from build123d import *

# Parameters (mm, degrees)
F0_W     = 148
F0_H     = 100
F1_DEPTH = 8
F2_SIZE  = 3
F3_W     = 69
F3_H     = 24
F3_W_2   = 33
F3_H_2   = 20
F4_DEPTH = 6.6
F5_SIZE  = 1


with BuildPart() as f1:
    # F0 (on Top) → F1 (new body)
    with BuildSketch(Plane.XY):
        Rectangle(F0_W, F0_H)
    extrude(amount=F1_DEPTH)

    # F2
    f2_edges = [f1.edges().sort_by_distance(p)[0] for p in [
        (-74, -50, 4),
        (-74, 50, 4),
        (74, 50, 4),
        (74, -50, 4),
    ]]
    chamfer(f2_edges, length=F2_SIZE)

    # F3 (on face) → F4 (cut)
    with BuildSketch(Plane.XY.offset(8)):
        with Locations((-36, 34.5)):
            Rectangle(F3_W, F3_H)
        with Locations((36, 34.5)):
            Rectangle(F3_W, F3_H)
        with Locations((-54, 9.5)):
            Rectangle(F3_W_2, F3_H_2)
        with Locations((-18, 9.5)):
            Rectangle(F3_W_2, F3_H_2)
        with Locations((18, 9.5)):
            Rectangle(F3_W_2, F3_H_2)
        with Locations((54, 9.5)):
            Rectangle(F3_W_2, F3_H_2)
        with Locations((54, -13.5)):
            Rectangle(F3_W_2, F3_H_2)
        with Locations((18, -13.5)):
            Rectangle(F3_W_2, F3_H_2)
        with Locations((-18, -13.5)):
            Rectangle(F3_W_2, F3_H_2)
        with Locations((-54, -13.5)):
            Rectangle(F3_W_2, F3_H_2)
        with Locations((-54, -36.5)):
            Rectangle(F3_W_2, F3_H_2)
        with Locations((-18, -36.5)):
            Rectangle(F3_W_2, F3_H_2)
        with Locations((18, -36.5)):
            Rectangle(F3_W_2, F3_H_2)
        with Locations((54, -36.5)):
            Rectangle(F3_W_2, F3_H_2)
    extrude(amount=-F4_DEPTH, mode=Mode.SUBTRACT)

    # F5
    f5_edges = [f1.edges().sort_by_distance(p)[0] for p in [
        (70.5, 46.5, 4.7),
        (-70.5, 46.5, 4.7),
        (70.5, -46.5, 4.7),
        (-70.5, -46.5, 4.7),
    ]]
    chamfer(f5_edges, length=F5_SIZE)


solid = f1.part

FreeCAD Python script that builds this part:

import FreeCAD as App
import Part
import Sketcher

V = App.Vector


def edges_at(feature, points):
    """Names of the edges that pass closest to the given points."""
    edges = feature.Shape.Edges
    near = lambda p: min(range(len(edges)), key=lambda i: edges[i].distToShape(Part.Vertex(*p))[0])
    return sorted({f"Edge{near(p) + 1}" for p in points})


def add_polygon(sketch, points):
    """Adds a closed chain of lines whose ends are joined by coincident constraints."""
    first, n = sketch.GeometryCount, len(points)
    for a, b in zip(points, points[1:] + points[:1]):
        sketch.addGeometry(Part.LineSegment(App.Vector(*a, 0), App.Vector(*b, 0)), False)
    for i in range(n):
        sketch.addConstraint(Sketcher.Constraint("Coincident", first + i, 2, first + (i + 1) % n, 1))

doc = App.newDocument("Part")
body = doc.addObject("PartDesign::Body", "Body")

# Sketch on XY plane
sketch1 = body.newObject("Sketcher::SketchObject", "Sketch")
sketch1.AttachmentSupport = (doc.getObject("XY_Plane"), [""])
sketch1.MapMode = "FlatFace"
add_polygon(sketch1, [(-74, 50), (-74, -50), (74, -50), (74, 50)])  # lines 0-3
sketch1.addConstraint([
    Sketcher.Constraint("Vertical", 0),
    Sketcher.Constraint("Horizontal", 1),
    Sketcher.Constraint("Vertical", 2),
    Sketcher.Constraint("Horizontal", 3),
    Sketcher.Constraint("Symmetric", 0, 2, 2, 2, -1, 1),
    Sketcher.Constraint("DistanceX", 1, 1, 1, 2, 148.0),
    Sketcher.Constraint("DistanceY", 0, 2, 0, 1, 100.0),
])
pad1 = body.newObject("PartDesign::Pad", "Pad")
pad1.Profile = sketch1
pad1.Length = 8
doc.recompute()

chamfer = body.newObject("PartDesign::Chamfer", "Chamfer")
chamfer.Base = (pad1, edges_at(pad1, [
    (-74, -50, 4),
    (-74, 50, 4),
    (74, 50, 4),
    (74, -50, 4),
]))
chamfer.Size = 3

# Sketch on XY plane
sketch2 = body.newObject("Sketcher::SketchObject", "Sketch001")
sketch2.AttachmentSupport = (doc.getObject("XY_Plane"), [""])
sketch2.MapMode = "FlatFace"
sketch2.AttachmentOffset = App.Placement(V(0, 0, 8), App.Rotation())
add_polygon(sketch2, [(-70.5, 46.5), (-70.5, 22.5), (-1.5, 22.5), (-1.5, 46.5)])  # lines 0-3
add_polygon(sketch2, [(1.5, 46.5), (1.5, 22.5), (70.5, 22.5), (70.5, 46.5)])  # lines 4-7
add_polygon(sketch2, [(-70.5, 19.5), (-70.5, -0.5), (-37.5, -0.5), (-37.5, 19.5)])  # lines 8-11
add_polygon(sketch2, [(-34.5, 19.5), (-34.5, -0.5), (-1.5, -0.5), (-1.5, 19.5)])  # lines 12-15
add_polygon(sketch2, [(1.5, 19.5), (1.5, -0.5), (34.5, -0.5), (34.5, 19.5)])  # lines 16-19
add_polygon(sketch2, [(37.5, 19.5), (37.5, -0.5), (70.5, -0.5), (70.5, 19.5)])  # lines 20-23
add_polygon(sketch2, [(37.5, -3.5), (37.5, -23.5), (70.5, -23.5), (70.5, -3.5)])  # lines 24-27
add_polygon(sketch2, [(1.5, -3.5), (1.5, -23.5), (34.5, -23.5), (34.5, -3.5)])  # lines 28-31
add_polygon(sketch2, [(-34.5, -3.5), (-34.5, -23.5), (-1.5, -23.5), (-1.5, -3.5)])  # lines 32-35
add_polygon(sketch2, [(-70.5, -3.5), (-70.5, -23.5), (-37.5, -23.5), (-37.5, -3.5)])  # lines 36-39
add_polygon(sketch2, [(-70.5, -26.5), (-70.5, -46.5), (-37.5, -46.5), (-37.5, -26.5)])  # lines 40-43
add_polygon(sketch2, [(-34.5, -26.5), (-34.5, -46.5), (-1.5, -46.5), (-1.5, -26.5)])  # lines 44-47
add_polygon(sketch2, [(1.5, -26.5), (1.5, -46.5), (34.5, -46.5), (34.5, -26.5)])  # lines 48-51
add_polygon(sketch2, [(37.5, -26.5), (37.5, -46.5), (70.5, -46.5), (70.5, -26.5)])  # lines 52-55
sketch2.addConstraint([
    Sketcher.Constraint("Vertical", 0),
    Sketcher.Constraint("Horizontal", 1),
    Sketcher.Constraint("Vertical", 2),
    Sketcher.Constraint("Horizontal", 3),
    Sketcher.Constraint("Vertical", 4),
    Sketcher.Constraint("Horizontal", 5),
    Sketcher.Constraint("Vertical", 6),
    Sketcher.Constraint("Horizontal", 7),
    Sketcher.Constraint("Vertical", 8),
    Sketcher.Constraint("Horizontal", 9),
    Sketcher.Constraint("Vertical", 10),
    Sketcher.Constraint("Horizontal", 11),
    Sketcher.Constraint("Vertical", 12),
    Sketcher.Constraint("Horizontal", 13),
    Sketcher.Constraint("Vertical", 14),
    Sketcher.Constraint("Horizontal", 15),
    Sketcher.Constraint("Vertical", 16),
    Sketcher.Constraint("Horizontal", 17),
    Sketcher.Constraint("Vertical", 18),
    Sketcher.Constraint("Horizontal", 19),
    Sketcher.Constraint("Vertical", 20),
    Sketcher.Constraint("Horizontal", 21),
    Sketcher.Constraint("Vertical", 22),
    Sketcher.Constraint("Horizontal", 23),
    Sketcher.Constraint("Vertical", 24),
    Sketcher.Constraint("Horizontal", 25),
    Sketcher.Constraint("Vertical", 26),
    Sketcher.Constraint("Horizontal", 27),
    Sketcher.Constraint("Vertical", 28),
    Sketcher.Constraint("Horizontal", 29),
    Sketcher.Constraint("Vertical", 30),
    Sketcher.Constraint("Horizontal", 31),
    Sketcher.Constraint("Vertical", 32),
    Sketcher.Constraint("Horizontal", 33),
    Sketcher.Constraint("Vertical", 34),
    Sketcher.Constraint("Horizontal", 35),
    Sketcher.Constraint("Vertical", 36),
    Sketcher.Constraint("Horizontal", 37),
    Sketcher.Constraint("Vertical", 38),
    Sketcher.Constraint("Horizontal", 39),
    Sketcher.Constraint("Vertical", 40),
    Sketcher.Constraint("Horizontal", 41),
    Sketcher.Constraint("Vertical", 42),
    Sketcher.Constraint("Horizontal", 43),
    Sketcher.Constraint("Vertical", 44),
    Sketcher.Constraint("Horizontal", 45),
    Sketcher.Constraint("Vertical", 46),
    Sketcher.Constraint("Horizontal", 47),
    Sketcher.Constraint("Vertical", 48),
    Sketcher.Constraint("Horizontal", 49),
    Sketcher.Constraint("Vertical", 50),
    Sketcher.Constraint("Horizontal", 51),
    Sketcher.Constraint("Vertical", 52),
    Sketcher.Constraint("Horizontal", 53),
    Sketcher.Constraint("Vertical", 54),
    Sketcher.Constraint("Horizontal", 55),
    Sketcher.Constraint("Symmetric", 6, 2, 40, 2, -1, 1),
    Sketcher.Constraint("Symmetric", 7, 2, 45, 2, -1, 1),
    Sketcher.Constraint("Symmetric", 2, 2, 48, 2, -1, 1),
    Sketcher.Constraint("Symmetric", 3, 2, 53, 2, -1, 1),
    Sketcher.Constraint("Symmetric", 1, 2, 4, 2, -2),
    Sketcher.Constraint("Symmetric", 3, 2, 6, 2, -2),
    Sketcher.Constraint("Symmetric", 13, 2, 16, 2, -2),
    Sketcher.Constraint("Symmetric", 15, 2, 18, 2, -2),
    Sketcher.Constraint("Symmetric", 9, 2, 20, 2, -2),
    Sketcher.Constraint("Symmetric", 11, 2, 22, 2, -2),
    Sketcher.Constraint("Symmetric", 29, 2, 32, 2, -2),
    Sketcher.Constraint("Symmetric", 31, 2, 34, 2, -2),
    Sketcher.Constraint("Symmetric", 25, 2, 36, 2, -2),
    Sketcher.Constraint("Symmetric", 27, 2, 38, 2, -2),
    Sketcher.Constraint("Symmetric", 47, 2, 50, 2, -2),
    Sketcher.Constraint("Symmetric", 42, 2, 55, 2, -2),
    Sketcher.Constraint("Horizontal", 9, 2, 12, 2),
    Sketcher.Constraint("Horizontal", 11, 2, 14, 2),
    Sketcher.Constraint("Horizontal", 25, 2, 28, 2),
    Sketcher.Constraint("Horizontal", 27, 2, 30, 2),
    Sketcher.Constraint("Horizontal", 43, 2, 46, 2),
    Sketcher.Constraint("Vertical", 3, 2, 8, 2),
    Sketcher.Constraint("Vertical", 2, 2, 13, 2),
    Sketcher.Constraint("Vertical", 23, 2, 24, 2),
    Sketcher.Constraint("Vertical", 22, 2, 25, 2),
    Sketcher.Constraint("Vertical", 19, 2, 28, 2),
    Sketcher.Constraint("Vertical", 18, 2, 29, 2),
    Sketcher.Constraint("Vertical", 38, 2, 41, 2),
    Sketcher.Constraint("Vertical", 35, 2, 44, 2),
    Sketcher.Constraint("Equal", 11, 13),
    Sketcher.Constraint("Equal", 22, 24),
    Sketcher.Constraint("Equal", 38, 40),
    Sketcher.Constraint("DistanceX", 1, 1, 1, 2, 69.0),
    Sketcher.Constraint("DistanceX", 9, 1, 9, 2, 33.0),
    Sketcher.Constraint("DistanceY", 0, 2, 0, 1, 24.0),
    Sketcher.Constraint("DistanceY", 8, 2, 8, 1, 20.0),
    Sketcher.Constraint("DistanceX", 1, 2, 4, 2, 3.0),
    Sketcher.Constraint("DistanceY", 8, 2, 0, 2, 23.0),
    Sketcher.Constraint("DistanceY", 24, 2, 20, 2, 23.0),
    Sketcher.Constraint("DistanceY", 40, 2, 36, 2, 23.0),
])
pocket1 = body.newObject("PartDesign::Pocket", "Pocket")
pocket1.Profile = sketch2
pocket1.Length = 6.6
doc.recompute()

chamfer2 = body.newObject("PartDesign::Chamfer", "Chamfer001")
chamfer2.Base = (pocket1, edges_at(pocket1, [
    (70.5, 46.5, 4.7),
    (-70.5, 46.5, 4.7),
    (70.5, -46.5, 4.7),
    (-70.5, -46.5, 4.7),
]))
chamfer2.Size = 1

doc.recompute()
